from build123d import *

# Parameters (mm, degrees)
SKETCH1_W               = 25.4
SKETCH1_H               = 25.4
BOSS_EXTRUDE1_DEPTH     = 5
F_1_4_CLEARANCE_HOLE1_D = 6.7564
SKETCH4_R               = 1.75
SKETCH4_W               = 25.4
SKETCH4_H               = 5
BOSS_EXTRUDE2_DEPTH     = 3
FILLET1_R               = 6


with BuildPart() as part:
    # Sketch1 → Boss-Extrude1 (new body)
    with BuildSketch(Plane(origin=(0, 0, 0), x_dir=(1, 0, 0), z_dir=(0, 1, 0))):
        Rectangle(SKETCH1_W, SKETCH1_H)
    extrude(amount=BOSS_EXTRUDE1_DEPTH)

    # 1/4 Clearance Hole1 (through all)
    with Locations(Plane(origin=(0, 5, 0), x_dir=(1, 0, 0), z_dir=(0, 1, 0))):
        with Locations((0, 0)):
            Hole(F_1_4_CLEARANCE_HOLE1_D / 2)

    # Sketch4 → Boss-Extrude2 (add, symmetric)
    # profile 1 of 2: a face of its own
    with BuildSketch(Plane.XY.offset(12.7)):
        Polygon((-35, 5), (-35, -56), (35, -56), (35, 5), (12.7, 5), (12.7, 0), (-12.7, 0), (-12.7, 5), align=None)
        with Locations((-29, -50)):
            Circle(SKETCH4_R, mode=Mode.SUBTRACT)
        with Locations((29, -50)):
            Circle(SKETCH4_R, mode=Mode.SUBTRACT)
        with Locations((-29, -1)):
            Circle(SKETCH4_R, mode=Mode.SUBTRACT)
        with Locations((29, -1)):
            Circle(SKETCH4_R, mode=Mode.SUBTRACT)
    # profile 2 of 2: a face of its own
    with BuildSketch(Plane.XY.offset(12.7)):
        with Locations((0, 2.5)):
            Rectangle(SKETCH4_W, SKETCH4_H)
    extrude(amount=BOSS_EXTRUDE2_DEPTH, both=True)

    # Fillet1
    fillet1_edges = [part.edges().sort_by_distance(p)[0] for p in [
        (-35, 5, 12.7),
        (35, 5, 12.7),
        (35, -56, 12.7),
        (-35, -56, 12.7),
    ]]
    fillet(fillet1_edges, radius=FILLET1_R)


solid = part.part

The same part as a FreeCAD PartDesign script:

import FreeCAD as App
import Part
import Sketcher
from FreeCAD import Vector
Q = App.Units.Quantity


def edges_at(feature, points):
    """Names of the edges that pass closest to the given points."""
    edges = feature.Shape.Edges
    near = lambda p: min(range(len(edges)), key=lambda i: edges[i].distToShape(Part.Vertex(*p))[0])
    return sorted({f"Edge{near(p) + 1}" for p in points})

doc = App.newDocument("Part")
body = doc.addObject("PartDesign::Body", "Body")

sketch1 = doc.addObject("Sketcher::SketchObject", "Sketch")
body.addObject(sketch1)
sketch1.AttachmentSupport = (doc.XZ_Plane, [""])
sketch1.MapMode = "FlatFace"
sketch1.addGeometry(Part.LineSegment(Vector(-12.7, -12.7, 0), Vector(-12.7, 12.7, 0)), False)
sketch1.addGeometry(Part.LineSegment(Vector(-12.7, 12.7, 0), Vector(12.7, 12.7, 0)), False)
sketch1.addGeometry(Part.LineSegment(Vector(12.7, 12.7, 0), Vector(12.7, -12.7, 0)), False)
sketch1.addGeometry(Part.LineSegment(Vector(12.7, -12.7, 0), Vector(-12.7, -12.7, 0)), False)
sketch1.addConstraint(Sketcher.Constraint("Coincident", 0, 2, 1, 1))
sketch1.addConstraint(Sketcher.Constraint("Coincident", 1, 2, 2, 1))
sketch1.addConstraint(Sketcher.Constraint("Coincident", 2, 2, 3, 1))
sketch1.addConstraint(Sketcher.Constraint("Coincident", 3, 2, 0, 1))
sketch1.addConstraint(Sketcher.Constraint("Vertical", 0))
sketch1.addConstraint(Sketcher.Constraint("Horizontal", 1))
sketch1.addConstraint(Sketcher.Constraint("Vertical", 2))
sketch1.addConstraint(Sketcher.Constraint("Horizontal", 3))
sketch1.addConstraint(Sketcher.Constraint("Symmetric", 0, 2, 2, 2, -1, 1))
sketch1.addConstraint(Sketcher.Constraint("Equal", 3, 0))
sketch1.addConstraint(Sketcher.Constraint("DistanceX", 1, 1, 1, 2, Q("25.4 mm")))
pad1 = doc.addObject("PartDesign::Pad", "Pad")
body.addObject(pad1)
pad1.Profile = sketch1
pad1.Length = 5
pad1.Reversed = True

sketch2 = doc.addObject("Sketcher::SketchObject", "Sketch001")
body.addObject(sketch2)
sketch2.AttachmentSupport = (doc.XZ_Plane, [""])
sketch2.MapMode = "FlatFace"
sketch2.AttachmentOffset = App.Placement(Vector(0, 0, -5), App.Rotation())
sketch2.addGeometry(Part.Circle(Vector(0, 0, 0), Vector(0, 0, 1), 3.3782), False)
sketch2.addConstraint(Sketcher.Constraint("Coincident", 0, 3, -1, 1))
sketch2.addConstraint(Sketcher.Constraint("Diameter", 0, Q("6.7564 mm")))
doc.recompute()
hole = doc.addObject("PartDesign::Hole", "Hole")
body.addObject(hole)
hole.Profile = sketch2
hole.ThreadType = "None"
hole.Diameter = 6.7564
hole.DepthType = "ThroughAll"
hole.Reversed = True

sketch3 = doc.addObject("Sketcher::SketchObject", "Sketch002")
body.addObject(sketch3)
sketch3.AttachmentSupport = (doc.XY_Plane, [""])
sketch3.MapMode = "FlatFace"
sketch3.AttachmentOffset = App.Placement(Vector(0, 0, 12.7), App.Rotation())
sketch3.addGeometry(Part.LineSegment(Vector(-35, 5, 0), Vector(-35, -56, 0)), False)
sketch3.addGeometry(Part.LineSegment(Vector(-35, -56, 0), Vector(35, -56, 0)), False)
sketch3.addGeometry(Part.LineSegment(Vector(35, -56, 0), Vector(35, 5, 0)), False)
sketch3.addGeometry(Part.LineSegment(Vector(35, 5, 0), Vector(-35, 5, 0)), False)
sketch3.addGeometry(Part.Circle(Vector(-29, -50, 0), Vector(0, 0, 1), 1.75), False)
sketch3.addGeometry(Part.Circle(Vector(29, -50, 0), Vector(0, 0, 1), 1.75), False)
sketch3.addGeometry(Part.Circle(Vector(-29, -1, 0), Vector(0, 0, 1), 1.75), False)
sketch3.addGeometry(Part.Circle(Vector(29, -1, 0), Vector(0, 0, 1), 1.75), False)
sketch3.addConstraint(Sketcher.Constraint("Coincident", 0, 2, 1, 1))
sketch3.addConstraint(Sketcher.Constraint("Coincident", 1, 2, 2, 1))
sketch3.addConstraint(Sketcher.Constraint("Coincident", 2, 2, 3, 1))
sketch3.addConstraint(Sketcher.Constraint("Coincident", 3, 2, 0, 1))
sketch3.addConstraint(Sketcher.Constraint("Vertical", 0))
sketch3.addConstraint(Sketcher.Constraint("Horizontal", 1))
sketch3.addConstraint(Sketcher.Constraint("Vertical", 2))
sketch3.addConstraint(Sketcher.Constraint("Horizontal", 3))
sketch3.addConstraint(Sketcher.Constraint("Equal", 4, 5))
sketch3.addConstraint(Sketcher.Constraint("Equal", 5, 6))
sketch3.addConstraint(Sketcher.Constraint("Equal", 6, 7))
sketch3.addConstraint(Sketcher.Constraint("Symmetric", 4, 3, 5, 3, -2))
sketch3.addConstraint(Sketcher.Constraint("Symmetric", 6, 3, 7, 3, -2))
sketch3.addConstraint(Sketcher.Constraint("Vertical", 4, 3, 6, 3))
sketch3.addConstraint(Sketcher.Constraint("Diameter", 4, Q("3.5 mm")))
sketch3.addConstraint(Sketcher.Constraint("DistanceX", 1, 1, 1, 2, Q("70 mm")))
sketch3.addConstraint(Sketcher.Constraint("DistanceY", 0, 2, 0, 1, Q("61 mm")))
sketch3.addConstraint(Sketcher.Constraint("DistanceX", 4, 3, -1, 1, Q("29 mm")))
sketch3.addConstraint(Sketcher.Constraint("DistanceY", 4, 3, -1, 1, Q("50 mm")))
sketch3.addConstraint(Sketcher.Constraint("DistanceY", 6, 3, -1, 1, Q("1 mm")))
sketch3.addConstraint(Sketcher.Constraint("DistanceX", 0, 2, -1, 1, Q("35 mm")))
sketch3.addConstraint(Sketcher.Constraint("DistanceY", 0, 2, -1, 1, Q("56 mm")))
pad2 = doc.addObject("PartDesign::Pad", "Pad001")
body.addObject(pad2)
pad2.Profile = sketch3
pad2.Length = 6
pad2.Midplane = True
doc.recompute()

fillet = doc.addObject("PartDesign::Fillet", "Fillet")
body.addObject(fillet)
fillet.Base = (pad2, edges_at(pad2, [
    (-35, 5, 12.7),
    (35, 5, 12.7),
    (35, -56, 12.7),
    (-35, -56, 12.7),
]))
fillet.Radius = 6

doc.recompute()
